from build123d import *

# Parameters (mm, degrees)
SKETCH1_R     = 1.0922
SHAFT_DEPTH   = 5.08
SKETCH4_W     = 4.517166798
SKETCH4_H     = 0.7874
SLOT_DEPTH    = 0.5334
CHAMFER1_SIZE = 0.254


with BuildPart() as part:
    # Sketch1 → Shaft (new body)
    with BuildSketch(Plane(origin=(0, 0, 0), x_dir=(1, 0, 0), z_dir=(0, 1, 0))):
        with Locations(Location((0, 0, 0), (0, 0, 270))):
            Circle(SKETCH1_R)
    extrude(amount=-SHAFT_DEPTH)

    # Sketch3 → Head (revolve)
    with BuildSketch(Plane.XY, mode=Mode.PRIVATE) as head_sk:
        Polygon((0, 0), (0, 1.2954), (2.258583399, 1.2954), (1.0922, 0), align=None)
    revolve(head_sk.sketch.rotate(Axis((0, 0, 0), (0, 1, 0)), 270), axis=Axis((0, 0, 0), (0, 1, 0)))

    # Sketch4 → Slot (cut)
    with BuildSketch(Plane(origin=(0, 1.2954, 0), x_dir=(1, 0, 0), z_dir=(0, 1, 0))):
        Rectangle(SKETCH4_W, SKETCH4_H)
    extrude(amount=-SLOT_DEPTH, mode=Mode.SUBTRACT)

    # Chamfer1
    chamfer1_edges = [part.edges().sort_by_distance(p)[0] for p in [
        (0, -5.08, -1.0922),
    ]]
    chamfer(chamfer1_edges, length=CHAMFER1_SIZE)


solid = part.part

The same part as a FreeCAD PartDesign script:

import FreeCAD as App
import Part
import Sketcher
Q = App.Units.Quantity


def edges_at(feature, points):
    """Names of the edges that pass closest to the given points."""
    edges = feature.Shape.Edges
    near = lambda p: min(range(len(edges)), key=lambda i: edges[i].distToShape(Part.Vertex(*p))[0])
    return sorted({f"Edge{near(p) + 1}" for p in points})

doc = App.newDocument("Part")
body = doc.addObject("PartDesign::Body", "Body")

# Sketch on XZ plane
sketch1 = body.newObject("Sketcher::SketchObject", "Sketch")
sketch1.AttachmentSupport = (doc.getObject("XZ_Plane"), [""])
sketch1.MapMode = "FlatFace"
sketch1.addGeometry(Part.Circle(App.Vector(0, 0, 0), App.Vector(0, 0, 1), 1.1), False)
sketch1.addConstraint([
    Sketcher.Constraint("Coincident", 0, 3, -1, 1),
    Sketcher.Constraint("Diameter", 0, Q("0.086 in")),
])
pad1 = body.newObject("PartDesign::Pad", "Pad")
pad1.Profile = sketch1
pad1.Length = Q("0.2 in")

# Sketch on XY plane
sketch2 = body.newObject("Sketcher::SketchObject", "Sketch001")
sketch2.AttachmentSupport = (doc.getObject("XY_Plane"), [""])
sketch2.MapMode = "FlatFace"
sketch2.addGeometry([
    Part.LineSegment(App.Vector(0, 1.3, 0), App.Vector(0, 0, 0)),
    Part.LineSegment(App.Vector(0, 0, 0), App.Vector(1.1, 0, 0)),
    Part.LineSegment(App.Vector(1.1, 0, 0), App.Vector(2.3, 1.3, 0)),
    Part.LineSegment(App.Vector(2.3, 1.3, 0), App.Vector(0, 1.3, 0)),
], False)
sketch2.addConstraint([
    Sketcher.Constraint("Coincident", 0, 2, 1, 1),
    Sketcher.Constraint("Coincident", 1, 2, 2, 1),
    Sketcher.Constraint("Coincident", 2, 2, 3, 1),
    Sketcher.Constraint("Coincident", 3, 2, 0, 1),
    Sketcher.Constraint("Vertical", 0),
    Sketcher.Constraint("Horizontal", 1),
    Sketcher.Constraint("Horizontal", 3),
    Sketcher.Constraint("Coincident", 0, 2, -1, 1),
    Sketcher.Constraint("Angle", 2, Q("48 deg")),
    Sketcher.Constraint("DistanceX", 1, 1, 1, 2, Q("0.043 in")),
    Sketcher.Constraint("DistanceY", 0, 2, 0, 1, Q("0.051 in")),
])
revolution = body.newObject("PartDesign::Revolution", "Revolution")
revolution.Profile = sketch2
revolution.ReferenceAxis = (sketch2, ["V_Axis"])
revolution.Angle = 360

# Sketch on XZ plane
sketch3 = body.newObject("Sketcher::SketchObject", "Sketch002")
sketch3.AttachmentSupport = (doc.getObject("XZ_Plane"), [""])
sketch3.MapMode = "FlatFace"
sketch3.AttachmentOffset = App.Placement(App.Vector(0, 0, -0.051 * 25.4), App.Rotation())
sketch3.addGeometry([
    Part.LineSegment(App.Vector(-2.3, -0.4, 0), App.Vector(-2.3, 0.4, 0)),
    Part.LineSegment(App.Vector(-2.3, 0.4, 0), App.Vector(2.3, 0.4, 0)),
    Part.LineSegment(App.Vector(2.3, 0.4, 0), App.Vector(2.3, -0.4, 0)),
    Part.LineSegment(App.Vector(2.3, -0.4, 0), App.Vector(-2.3, -0.4, 0)),
], False)
sketch3.addConstraint([
    Sketcher.Constraint("Coincident", 0, 2, 1, 1),
    Sketcher.Constraint("Coincident", 1, 2, 2, 1),
    Sketcher.Constraint("Coincident", 2, 2, 3, 1),
    Sketcher.Constraint("Coincident", 3, 2, 0, 1),
    Sketcher.Constraint("Vertical", 0),
    Sketcher.Constraint("Horizontal", 1),
    Sketcher.Constraint("Vertical", 2),
    Sketcher.Constraint("Horizontal", 3),
    Sketcher.Constraint("Symmetric", 0, 2, 2, 2, -1, 1),
    Sketcher.Constraint("DistanceY", 0, 1, 0, 2, Q("0.031 in")),
    Sketcher.Constraint("DistanceX", 1, 1, 1, 2, 4.517167),
])
pocket1 = body.newObject("PartDesign::Pocket", "Pocket")
pocket1.Profile = sketch3
pocket1.Length = Q("0.021 in")
pocket1.Reversed = True
doc.recompute()

chamfer = body.newObject("PartDesign::Chamfer", "Chamfer")
chamfer.Base = (pocket1, edges_at(pocket1, [(0, -5.08, -1.092)]))
chamfer.Size = Q("0.01 in")

doc.recompute()
